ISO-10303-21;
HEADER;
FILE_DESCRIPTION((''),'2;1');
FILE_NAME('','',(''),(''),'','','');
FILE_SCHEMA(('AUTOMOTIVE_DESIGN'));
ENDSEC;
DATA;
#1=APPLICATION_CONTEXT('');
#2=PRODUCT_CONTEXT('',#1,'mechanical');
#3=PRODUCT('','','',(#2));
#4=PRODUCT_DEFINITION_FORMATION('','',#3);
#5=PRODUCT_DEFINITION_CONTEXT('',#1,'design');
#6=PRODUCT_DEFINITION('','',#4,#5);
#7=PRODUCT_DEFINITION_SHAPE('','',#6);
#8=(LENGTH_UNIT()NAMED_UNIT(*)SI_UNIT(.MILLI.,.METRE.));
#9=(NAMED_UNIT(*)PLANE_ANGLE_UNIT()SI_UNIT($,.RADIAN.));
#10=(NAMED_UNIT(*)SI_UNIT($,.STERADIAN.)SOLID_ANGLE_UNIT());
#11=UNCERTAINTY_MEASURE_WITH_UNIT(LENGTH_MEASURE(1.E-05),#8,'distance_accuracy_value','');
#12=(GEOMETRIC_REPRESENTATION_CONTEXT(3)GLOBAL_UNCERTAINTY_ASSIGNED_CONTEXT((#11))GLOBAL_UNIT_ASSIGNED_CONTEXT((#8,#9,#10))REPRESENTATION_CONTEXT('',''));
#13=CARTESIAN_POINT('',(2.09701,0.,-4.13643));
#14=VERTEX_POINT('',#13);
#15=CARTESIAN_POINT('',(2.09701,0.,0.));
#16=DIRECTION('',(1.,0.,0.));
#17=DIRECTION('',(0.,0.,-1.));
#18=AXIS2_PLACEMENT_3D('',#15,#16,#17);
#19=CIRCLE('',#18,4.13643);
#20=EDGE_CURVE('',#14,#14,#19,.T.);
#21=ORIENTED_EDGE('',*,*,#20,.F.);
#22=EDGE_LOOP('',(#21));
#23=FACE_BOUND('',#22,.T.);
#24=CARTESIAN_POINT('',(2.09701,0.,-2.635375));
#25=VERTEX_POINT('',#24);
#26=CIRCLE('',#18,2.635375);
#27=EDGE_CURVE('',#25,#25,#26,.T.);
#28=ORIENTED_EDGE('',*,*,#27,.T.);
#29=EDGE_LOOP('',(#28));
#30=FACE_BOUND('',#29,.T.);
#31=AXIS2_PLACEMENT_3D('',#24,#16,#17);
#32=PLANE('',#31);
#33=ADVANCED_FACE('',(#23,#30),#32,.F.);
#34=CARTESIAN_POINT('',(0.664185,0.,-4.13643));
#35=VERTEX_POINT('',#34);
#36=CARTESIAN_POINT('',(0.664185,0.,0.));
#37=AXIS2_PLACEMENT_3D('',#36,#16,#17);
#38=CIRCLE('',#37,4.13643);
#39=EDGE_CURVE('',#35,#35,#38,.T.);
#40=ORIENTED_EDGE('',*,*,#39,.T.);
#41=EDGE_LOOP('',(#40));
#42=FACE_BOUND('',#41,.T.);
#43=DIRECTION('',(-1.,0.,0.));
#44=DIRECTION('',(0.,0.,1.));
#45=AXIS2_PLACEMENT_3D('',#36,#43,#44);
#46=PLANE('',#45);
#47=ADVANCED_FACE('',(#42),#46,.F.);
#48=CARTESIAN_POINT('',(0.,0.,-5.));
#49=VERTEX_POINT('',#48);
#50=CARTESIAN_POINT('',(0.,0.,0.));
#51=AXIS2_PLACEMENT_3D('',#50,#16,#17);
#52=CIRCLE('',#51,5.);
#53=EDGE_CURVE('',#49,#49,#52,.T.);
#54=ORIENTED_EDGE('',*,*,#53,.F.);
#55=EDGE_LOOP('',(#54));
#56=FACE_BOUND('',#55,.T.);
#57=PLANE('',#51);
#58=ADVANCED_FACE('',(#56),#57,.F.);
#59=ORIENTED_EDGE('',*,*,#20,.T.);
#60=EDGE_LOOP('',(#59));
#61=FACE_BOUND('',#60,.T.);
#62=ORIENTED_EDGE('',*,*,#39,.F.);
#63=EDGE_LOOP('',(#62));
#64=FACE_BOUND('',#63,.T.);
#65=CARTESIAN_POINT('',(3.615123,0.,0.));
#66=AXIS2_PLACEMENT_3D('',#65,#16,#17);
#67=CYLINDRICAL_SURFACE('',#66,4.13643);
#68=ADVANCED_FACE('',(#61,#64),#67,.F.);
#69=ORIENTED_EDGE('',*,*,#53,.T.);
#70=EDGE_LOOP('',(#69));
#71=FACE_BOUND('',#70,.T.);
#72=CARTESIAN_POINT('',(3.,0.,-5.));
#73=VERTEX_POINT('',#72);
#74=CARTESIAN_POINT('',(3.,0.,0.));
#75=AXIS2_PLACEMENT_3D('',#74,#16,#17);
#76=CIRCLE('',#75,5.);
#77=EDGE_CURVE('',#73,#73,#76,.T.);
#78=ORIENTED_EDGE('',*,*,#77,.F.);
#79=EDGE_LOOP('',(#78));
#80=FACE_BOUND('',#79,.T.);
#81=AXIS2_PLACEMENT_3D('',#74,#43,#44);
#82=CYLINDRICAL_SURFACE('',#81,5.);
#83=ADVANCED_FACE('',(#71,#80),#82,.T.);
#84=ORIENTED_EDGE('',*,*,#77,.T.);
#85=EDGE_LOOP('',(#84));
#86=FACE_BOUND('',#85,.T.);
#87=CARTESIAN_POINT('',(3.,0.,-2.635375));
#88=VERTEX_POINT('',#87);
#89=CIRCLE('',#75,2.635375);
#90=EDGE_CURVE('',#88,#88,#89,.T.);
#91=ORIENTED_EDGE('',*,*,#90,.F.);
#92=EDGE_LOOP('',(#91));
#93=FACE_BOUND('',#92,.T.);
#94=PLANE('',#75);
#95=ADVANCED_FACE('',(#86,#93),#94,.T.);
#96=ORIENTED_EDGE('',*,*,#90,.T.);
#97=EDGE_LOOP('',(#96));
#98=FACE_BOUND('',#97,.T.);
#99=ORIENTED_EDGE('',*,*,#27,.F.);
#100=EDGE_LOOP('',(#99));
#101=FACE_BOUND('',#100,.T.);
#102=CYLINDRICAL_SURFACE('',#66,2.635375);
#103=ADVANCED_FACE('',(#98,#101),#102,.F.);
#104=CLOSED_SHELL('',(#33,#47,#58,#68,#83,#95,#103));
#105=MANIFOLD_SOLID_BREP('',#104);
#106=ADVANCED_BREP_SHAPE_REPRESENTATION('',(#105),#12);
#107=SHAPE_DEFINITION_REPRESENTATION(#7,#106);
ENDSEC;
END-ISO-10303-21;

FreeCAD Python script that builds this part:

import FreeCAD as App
import Part
import Sketcher
from FreeCAD import Vector

doc = App.newDocument("Part")
params = doc.addObject("Spreadsheet::Sheet", "Params")
for row, (alias, value) in enumerate([
    ("sketch1_diameter", "10 mm"),
    ("pad1_length", "3 mm"),
    ("groove_angle", "360 deg"),
], start=1):
    params.set(f"A{row}", alias)
    params.set(f"B{row}", "=" + value)
    params.setAlias(f"B{row}", alias)

body = doc.addObject("PartDesign::Body", "Body")

# Sketch on YZ plane
sketch1 = body.newObject("Sketcher::SketchObject", "Sketch")
sketch1.AttachmentSupport = (doc.getObject("YZ_Plane"), [""])
sketch1.MapMode = "FlatFace"
sketch1.addGeometry(Part.Circle(Vector(0, 0, 0), Vector(0, 0, 1), 5), False)
sketch1.addConstraint([
    Sketcher.Constraint("Coincident", 0, 3, -1, 1),
    Sketcher.Constraint("Diameter", 0, 10.0),
])
sketch1.setExpression("Constraints[1]", "Params.sketch1_diameter")
pad1 = body.newObject("PartDesign::Pad", "Pad")
pad1.Profile = sketch1
pad1.setExpression("Length", "Params.pad1_length")

# Sketch on XZ plane
sketch2 = body.newObject("Sketcher::SketchObject", "Sketch001")
sketch2.AttachmentSupport = (doc.getObject("XZ_Plane"), [""])
sketch2.MapMode = "FlatFace"
sketch2.addGeometry([
    Part.LineSegment(Vector(2.1, -2.6, 0), Vector(2.1, -4.1, 0)),  # 0
    Part.LineSegment(Vector(2.1, -4.1, 0), Vector(0.7, -4.1, 0)),  # 1
    Part.LineSegment(Vector(0.7, -4.1, 0), Vector(0.7, 0, 0)),  # 2
    Part.LineSegment(Vector(0.7, 0, 0), Vector(3.6, 0, 0)),  # 3
    Part.LineSegment(Vector(3.6, 0, 0), Vector(3.6, -2.6, 0)),  # 4
    Part.LineSegment(Vector(3.6, -2.6, 0), Vector(2.1, -2.6, 0)),  # 5
], False)
sketch2.addConstraint([
    Sketcher.Constraint("Coincident", 0, 2, 1, 1),
    Sketcher.Constraint("Coincident", 1, 2, 2, 1),
    Sketcher.Constraint("Coincident", 2, 2, 3, 1),
    Sketcher.Constraint("Coincident", 3, 2, 4, 1),
    Sketcher.Constraint("Coincident", 4, 2, 5, 1),
    Sketcher.Constraint("Coincident", 5, 2, 0, 1),
    Sketcher.Constraint("Vertical", 0),
    Sketcher.Constraint("Horizontal", 1),
    Sketcher.Constraint("Vertical", 2),
    Sketcher.Constraint("Horizontal", 3),
    Sketcher.Constraint("Vertical", 4),
    Sketcher.Constraint("Horizontal", 5),
    Sketcher.Constraint("PointOnObject", 2, 2, -1),
    Sketcher.Constraint("DistanceY", 2, 1, 2, 2, 4.13643),
    Sketcher.Constraint("DistanceX", 1, 2, 1, 1, 1.432825),
    Sketcher.Constraint("DistanceX", 3, 1, 3, 2, 2.950937),
    Sketcher.Constraint("DistanceY", 0, 2, 0, 1, 1.501055),
    Sketcher.Constraint("DistanceX", -1, 1, 0, 2, 2.09701),
])
groove = body.newObject("PartDesign::Groove", "Groove")
groove.Profile = sketch2
groove.ReferenceAxis = (sketch2, ["H_Axis"])
groove.setExpression("Angle", "Params.groove_angle")

doc.recompute()
